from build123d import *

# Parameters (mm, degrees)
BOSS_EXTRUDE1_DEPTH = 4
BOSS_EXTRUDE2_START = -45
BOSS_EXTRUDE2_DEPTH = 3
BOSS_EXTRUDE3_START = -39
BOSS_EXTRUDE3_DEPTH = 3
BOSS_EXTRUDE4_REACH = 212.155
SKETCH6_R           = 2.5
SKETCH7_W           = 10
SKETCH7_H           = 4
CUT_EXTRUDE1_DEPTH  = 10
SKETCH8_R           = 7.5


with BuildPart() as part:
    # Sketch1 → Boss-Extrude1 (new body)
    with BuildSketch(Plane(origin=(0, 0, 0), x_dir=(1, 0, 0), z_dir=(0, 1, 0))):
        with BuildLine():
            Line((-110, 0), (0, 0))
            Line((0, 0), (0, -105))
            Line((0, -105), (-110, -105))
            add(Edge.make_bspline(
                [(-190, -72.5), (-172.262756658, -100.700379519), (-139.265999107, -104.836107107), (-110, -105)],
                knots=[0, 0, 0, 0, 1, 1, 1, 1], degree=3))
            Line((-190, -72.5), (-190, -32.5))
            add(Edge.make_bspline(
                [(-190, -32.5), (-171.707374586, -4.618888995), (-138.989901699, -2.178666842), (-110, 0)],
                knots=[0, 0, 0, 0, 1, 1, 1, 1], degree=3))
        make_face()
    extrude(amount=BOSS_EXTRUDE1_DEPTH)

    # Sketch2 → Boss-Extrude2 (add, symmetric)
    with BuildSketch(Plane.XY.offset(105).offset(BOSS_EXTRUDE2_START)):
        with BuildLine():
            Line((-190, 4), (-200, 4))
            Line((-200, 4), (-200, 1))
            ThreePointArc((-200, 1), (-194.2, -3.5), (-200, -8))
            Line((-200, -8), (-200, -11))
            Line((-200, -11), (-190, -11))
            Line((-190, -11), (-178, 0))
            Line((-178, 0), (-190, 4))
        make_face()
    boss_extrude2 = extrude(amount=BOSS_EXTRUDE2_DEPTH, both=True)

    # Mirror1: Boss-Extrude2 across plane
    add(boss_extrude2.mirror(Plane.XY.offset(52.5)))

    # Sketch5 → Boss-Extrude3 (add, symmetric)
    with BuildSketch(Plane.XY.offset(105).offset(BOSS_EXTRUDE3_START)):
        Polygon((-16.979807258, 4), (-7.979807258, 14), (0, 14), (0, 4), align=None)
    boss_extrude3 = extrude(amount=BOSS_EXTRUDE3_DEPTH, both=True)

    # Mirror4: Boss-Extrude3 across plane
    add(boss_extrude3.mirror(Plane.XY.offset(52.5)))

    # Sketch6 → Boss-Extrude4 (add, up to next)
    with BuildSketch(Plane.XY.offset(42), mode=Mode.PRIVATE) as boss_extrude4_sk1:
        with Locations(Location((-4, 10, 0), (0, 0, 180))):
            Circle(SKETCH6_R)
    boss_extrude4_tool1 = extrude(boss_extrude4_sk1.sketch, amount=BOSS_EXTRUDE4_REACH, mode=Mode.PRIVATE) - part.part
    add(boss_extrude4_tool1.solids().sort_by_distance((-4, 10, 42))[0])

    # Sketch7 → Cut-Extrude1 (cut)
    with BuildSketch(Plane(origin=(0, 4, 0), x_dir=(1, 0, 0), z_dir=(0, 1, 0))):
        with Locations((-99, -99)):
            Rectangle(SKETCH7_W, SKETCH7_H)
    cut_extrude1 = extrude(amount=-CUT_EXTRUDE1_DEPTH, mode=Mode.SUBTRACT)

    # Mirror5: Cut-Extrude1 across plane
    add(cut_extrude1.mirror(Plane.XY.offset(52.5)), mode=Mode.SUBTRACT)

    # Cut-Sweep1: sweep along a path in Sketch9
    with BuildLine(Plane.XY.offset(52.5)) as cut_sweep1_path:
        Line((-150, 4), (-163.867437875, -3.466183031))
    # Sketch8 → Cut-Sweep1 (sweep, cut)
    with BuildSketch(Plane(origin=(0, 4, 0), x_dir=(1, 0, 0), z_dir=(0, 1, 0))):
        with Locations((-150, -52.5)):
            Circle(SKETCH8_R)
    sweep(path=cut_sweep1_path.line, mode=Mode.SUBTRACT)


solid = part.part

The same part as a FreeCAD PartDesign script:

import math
import FreeCAD as App
import Part
import Sketcher

V = App.Vector
Q = App.Units.Quantity


def add_polygon(sketch, points):
    """Adds a closed chain of lines whose ends are joined by coincident constraints."""
    first, n = sketch.GeometryCount, len(points)
    for a, b in zip(points, points[1:] + points[:1]):
        sketch.addGeometry(Part.LineSegment(App.Vector(*a, 0), App.Vector(*b, 0)), False)
    for i in range(n):
        sketch.addConstraint(Sketcher.Constraint("Coincident", first + i, 2, first + (i + 1) % n, 1))

doc = App.newDocument("Part")
params = doc.addObject("Spreadsheet::Sheet", "Params")
for row, (alias, value) in enumerate([
    ("pad1_length", "4 mm"),
    ("sketch2_width", "10 mm"),
    ("sketch2_height", "3 mm"),
    ("pad2_length", "6 mm"),
    ("sketch3_height", "10 mm"),
    ("pad3_length", "6 mm"),
    ("sketch4_diameter", "5 mm"),
    ("sketch5_width", "10 mm"),
    ("sketch5_height", "4 mm"),
    ("pocket1_length", "10 mm"),
    ("sketch6_diameter", "15 mm"),
], start=1):
    params.set(f"A{row}", alias)
    params.set(f"B{row}", "=" + value)
    params.setAlias(f"B{row}", alias)

body = doc.addObject("PartDesign::Body", "Body")

# Sketch on XZ plane
sketch1 = body.newObject("Sketcher::SketchObject", "Sketch")
sketch1.AttachmentSupport = (doc.getObject("XZ_Plane"), [""])
sketch1.MapMode = "FlatFace"
sketch1.addGeometry([
    Part.LineSegment(V(0, 0, 0), V(-110, 0, 0)),  # 0
    Part.BSplineCurve([V(-190, 32.5, 0), V(-171.707375, 4.618889, 0), V(-138.989902, 2.178667, 0), V(-110, 0, 0)], [4, 4], [0, 1], False, 3, [1, 1, 1, 1], False),  # 1
    Part.LineSegment(V(-190, 32.5, 0), V(-190, 72.5, 0)),  # 2
    Part.BSplineCurve([V(-190, 72.5, 0), V(-172.262757, 100.70038, 0), V(-139.265999, 104.836107, 0), V(-110, 105, 0)], [4, 4], [0, 1], False, 3, [1, 1, 1, 1], False),  # 3
    Part.LineSegment(V(-110, 105, 0), V(0, 105, 0)),  # 4
    Part.LineSegment(V(0, 105, 0), V(0, 0, 0)),  # 5
], False)
sketch1.addConstraint([
    Sketcher.Constraint("Block", 1),
    Sketcher.Constraint("Block", 3),
    Sketcher.Constraint("Coincident", 0, 2, 1, 2),
    Sketcher.Constraint("Coincident", 1, 1, 2, 1),
    Sketcher.Constraint("Coincident", 2, 2, 3, 1),
    Sketcher.Constraint("Coincident", 3, 2, 4, 1),
    Sketcher.Constraint("Coincident", 4, 2, 5, 1),
    Sketcher.Constraint("Coincident", 5, 2, 0, 1),
    Sketcher.Constraint("Horizontal", 0),
    Sketcher.Constraint("Horizontal", 4),
    Sketcher.Constraint("Vertical", 5),
    Sketcher.Constraint("PointOnObject", 4, 2, -2),
])
pad1 = body.newObject("PartDesign::Pad", "Pad")
pad1.Profile = sketch1
pad1.setExpression("Length", "Params.pad1_length")
pad1.Reversed = True

# Sketch on XY plane
sketch2 = body.newObject("Sketcher::SketchObject", "Sketch001")
sketch2.AttachmentSupport = (doc.getObject("XY_Plane"), [""])
sketch2.MapMode = "FlatFace"
sketch2.AttachmentOffset = App.Placement(V(0, 0, 60), App.Rotation())
sketch2.addGeometry([
    Part.LineSegment(V(-190, 4, 0), V(-200, 4, 0)),  # 0
    Part.LineSegment(V(-200, 4, 0), V(-200, 1, 0)),  # 1
    Part.ArcOfCircle(Part.Circle(V(-198.8, -3.5, 0), V(0, 0, 1), 4.6), math.radians(-104), math.radians(104)),  # 2
    Part.LineSegment(V(-200, -8, 0), V(-200, -11, 0)),  # 3
    Part.LineSegment(V(-200, -11, 0), V(-190, -11, 0)),  # 4
    Part.LineSegment(V(-190, -11, 0), V(-178, 0, 0)),  # 5
    Part.LineSegment(V(-178, 0, 0), V(-190, 4, 0)),  # 6
], False)
sketch2.addConstraint([
    Sketcher.Constraint("Coincident", 0, 2, 1, 1),
    Sketcher.Constraint("Coincident", 1, 2, 2, 2),
    Sketcher.Constraint("Coincident", 2, 1, 3, 1),
    Sketcher.Constraint("Coincident", 3, 2, 4, 1),
    Sketcher.Constraint("Coincident", 4, 2, 5, 1),
    Sketcher.Constraint("Coincident", 5, 2, 6, 1),
    Sketcher.Constraint("Coincident", 6, 2, 0, 1),
    Sketcher.Constraint("Horizontal", 0),
    Sketcher.Constraint("Vertical", 1),
    Sketcher.Constraint("Vertical", 3),
    Sketcher.Constraint("Horizontal", 4),
    Sketcher.Constraint("PointOnObject", 5, 2, -1),
    Sketcher.Constraint("Vertical", 1, 2, 2, 1),
    Sketcher.Constraint("Vertical", 4, 2, 6, 2),
    Sketcher.Constraint("Equal", 1, 3),
    Sketcher.Constraint("DistanceX", 0, 2, 0, 1, Q("10 mm")),
    Sketcher.Constraint("DistanceY", 1, 2, 1, 1, Q("3 mm")),
    Sketcher.Constraint("DistanceX", 0, 2, -1, 1, Q("200 mm")),
    Sketcher.Constraint("DistanceY", -1, 1, 0, 2, Q("4 mm")),
    Sketcher.Constraint("DistanceY", 2, 1, -1, 1, Q("8 mm")),
    Sketcher.Constraint("DistanceX", 5, 2, -1, 1, Q("178 mm")),
    Sketcher.Constraint("Radius", 2, Q("4.64569 mm")),
])
sketch2.setExpression("Constraints[15]", "Params.sketch2_width")
sketch2.setExpression("Constraints[16]", "Params.sketch2_height")
pad2 = body.newObject("PartDesign::Pad", "Pad001")
pad2.Profile = sketch2
pad2.setExpression("Length", "Params.pad2_length")
pad2.Midplane = True
doc.recompute()

datumplane = body.newObject("PartDesign::Plane", "DatumPlane")
datumplane.AttachmentSupport = (doc.getObject("XY_Plane"), [""])
datumplane.MapMode = "FlatFace"
datumplane.AttachmentOffset = App.Placement(V(0, 0, 52.5), App.Rotation())
mirrored = body.newObject("PartDesign::Mirrored", "Mirrored")
mirrored.Originals = [pad2]
mirrored.MirrorPlane = (datumplane, [""])
body.Tip = mirrored

# Sketch on XY plane
sketch3 = body.newObject("Sketcher::SketchObject", "Sketch002")
sketch3.AttachmentSupport = (doc.getObject("XY_Plane"), [""])
sketch3.MapMode = "FlatFace"
sketch3.AttachmentOffset = App.Placement(V(0, 0, 66), App.Rotation())
add_polygon(sketch3, [(-8, 14), (-17, 4), (0, 4), (0, 14)])  # lines 0-3
sketch3.addConstraint([
    Sketcher.Constraint("Horizontal", 1),
    Sketcher.Constraint("Vertical", 2),
    Sketcher.Constraint("Horizontal", 3),
    Sketcher.Constraint("PointOnObject", 1, 2, -2),
    Sketcher.Constraint("DistanceY", 2, 1, 2, 2, Q("10 mm")),
    Sketcher.Constraint("DistanceY", -1, 1, 0, 2, Q("4 mm")),
    Sketcher.Constraint("DistanceX", 0, 2, 3, 2, Q("9 mm")),
    Sketcher.Constraint("DistanceX", 1, 1, 1, 2, Q("16.979807 mm")),
])
sketch3.setExpression("Constraints[8]", "Params.sketch3_height")
pad3 = body.newObject("PartDesign::Pad", "Pad002")
pad3.Profile = sketch3
pad3.setExpression("Length", "Params.pad3_length")
pad3.Midplane = True
doc.recompute()

datumplane2 = body.newObject("PartDesign::Plane", "DatumPlane001")
datumplane2.AttachmentSupport = (doc.getObject("XY_Plane"), [""])
datumplane2.MapMode = "FlatFace"
datumplane2.AttachmentOffset = App.Placement(V(0, 0, 52.5), App.Rotation())
mirrored2 = body.newObject("PartDesign::Mirrored", "Mirrored001")
mirrored2.Originals = [pad3]
mirrored2.MirrorPlane = (datumplane2, [""])
body.Tip = mirrored2

# Sketch on XY plane
sketch4 = body.newObject("Sketcher::SketchObject", "Sketch003")
sketch4.AttachmentSupport = (doc.getObject("XY_Plane"), [""])
sketch4.MapMode = "FlatFace"
sketch4.AttachmentOffset = App.Placement(V(0, 0, 42), App.Rotation())
sketch4.addGeometry(Part.Circle(V(-4, 10, 0), V(0, 0, 1), 2.5), False)
sketch4.addConstraint([
    Sketcher.Constraint("Diameter", 0, Q("5 mm")),
    Sketcher.Constraint("DistanceX", 0, 3, -1, 1, Q("4 mm")),
    Sketcher.Constraint("DistanceY", -1, 1, 0, 3, Q("10 mm")),
])
sketch4.setExpression("Constraints[0]", "Params.sketch4_diameter")
pad4 = body.newObject("PartDesign::Pad", "Pad003")
pad4.Profile = sketch4
pad4.Type = "UpToFirst"

# Sketch on XZ plane
sketch5 = body.newObject("Sketcher::SketchObject", "Sketch004")
sketch5.AttachmentSupport = (doc.getObject("XZ_Plane"), [""])
sketch5.MapMode = "FlatFace"
sketch5.AttachmentOffset = App.Placement(V(0, 0, -4), App.Rotation())
add_polygon(sketch5, [(-104, 97), (-104, 101), (-94, 101), (-94, 97)])  # lines 0-3
sketch5.addConstraint([
    Sketcher.Constraint("Vertical", 0),
    Sketcher.Constraint("Horizontal", 1),
    Sketcher.Constraint("Vertical", 2),
    Sketcher.Constraint("Horizontal", 3),
    Sketcher.Constraint("DistanceX", 1, 1, 1, 2, Q("10 mm")),
    Sketcher.Constraint("DistanceY", 0, 1, 0, 2, Q("4 mm")),
    Sketcher.Constraint("DistanceX", 0, 2, -1, 1, Q("104 mm")),
    Sketcher.Constraint("DistanceY", -1, 1, 0, 2, Q("101 mm")),
])
sketch5.setExpression("Constraints[8]", "Params.sketch5_width")
sketch5.setExpression("Constraints[9]", "Params.sketch5_height")
pocket1 = body.newObject("PartDesign::Pocket", "Pocket")
pocket1.Profile = sketch5
pocket1.setExpression("Length", "Params.pocket1_length")
pocket1.Reversed = True
doc.recompute()

datumplane3 = body.newObject("PartDesign::Plane", "DatumPlane002")
datumplane3.AttachmentSupport = (doc.getObject("XY_Plane"), [""])
datumplane3.MapMode = "FlatFace"
datumplane3.AttachmentOffset = App.Placement(V(0, 0, 52.5), App.Rotation())
mirrored3 = body.newObject("PartDesign::Mirrored", "Mirrored002")
mirrored3.Originals = [pocket1]
mirrored3.MirrorPlane = (datumplane3, [""])
body.Tip = mirrored3

# Sketch on XZ plane
sketch6 = body.newObject("Sketcher::SketchObject", "Sketch005")
sketch6.AttachmentSupport = (doc.getObject("XZ_Plane"), [""])
sketch6.MapMode = "FlatFace"
sketch6.AttachmentOffset = App.Placement(V(0, 0, -4), App.Rotation())
sketch6.addGeometry(Part.Circle(V(-150, 52, 0), V(0, 0, 1), 8), False)
sketch6.addConstraint([
    Sketcher.Constraint("Diameter", 0, Q("15 mm")),
    Sketcher.Constraint("DistanceX", 0, 3, -1, 1, Q("150 mm")),
    Sketcher.Constraint("DistanceY", -1, 1, 0, 3, Q("52.5 mm")),
])
sketch6.setExpression("Constraints[0]", "Params.sketch6_diameter")

# Sketch on an angled plane
sketch7 = body.newObject("Sketcher::SketchObject", "Sketch006")
sketch7.Placement = App.Placement(V(-35.378918, 65.711615, 0), App.Rotation(V(-0.880494924, -0.474055577, 0), V(0, 0, 1.000000001), V(-0.474055577, 0.880494924, 0), "ZXY"))
sketch7.addGeometry(Part.LineSegment(V(130, 53, 0), V(146, 53, 0)), False)
sketch7.addConstraint([
    Sketcher.Constraint("Horizontal", 0),
    Sketcher.Constraint("DistanceY", -1, 1, 0, 1, Q("52.5 mm")),
    Sketcher.Constraint("DistanceX", 0, 1, 0, 2, Q("15.749594 mm")),
    Sketcher.Constraint("DistanceX", -1, 1, 0, 2, Q("145.927611 mm")),
])
doc.recompute()

subtractivepipe = body.newObject("PartDesign::SubtractivePipe", "SubtractivePipe")
subtractivepipe.Profile = sketch6
subtractivepipe.Spine = (sketch7, ["Edge1"])

doc.recompute()
